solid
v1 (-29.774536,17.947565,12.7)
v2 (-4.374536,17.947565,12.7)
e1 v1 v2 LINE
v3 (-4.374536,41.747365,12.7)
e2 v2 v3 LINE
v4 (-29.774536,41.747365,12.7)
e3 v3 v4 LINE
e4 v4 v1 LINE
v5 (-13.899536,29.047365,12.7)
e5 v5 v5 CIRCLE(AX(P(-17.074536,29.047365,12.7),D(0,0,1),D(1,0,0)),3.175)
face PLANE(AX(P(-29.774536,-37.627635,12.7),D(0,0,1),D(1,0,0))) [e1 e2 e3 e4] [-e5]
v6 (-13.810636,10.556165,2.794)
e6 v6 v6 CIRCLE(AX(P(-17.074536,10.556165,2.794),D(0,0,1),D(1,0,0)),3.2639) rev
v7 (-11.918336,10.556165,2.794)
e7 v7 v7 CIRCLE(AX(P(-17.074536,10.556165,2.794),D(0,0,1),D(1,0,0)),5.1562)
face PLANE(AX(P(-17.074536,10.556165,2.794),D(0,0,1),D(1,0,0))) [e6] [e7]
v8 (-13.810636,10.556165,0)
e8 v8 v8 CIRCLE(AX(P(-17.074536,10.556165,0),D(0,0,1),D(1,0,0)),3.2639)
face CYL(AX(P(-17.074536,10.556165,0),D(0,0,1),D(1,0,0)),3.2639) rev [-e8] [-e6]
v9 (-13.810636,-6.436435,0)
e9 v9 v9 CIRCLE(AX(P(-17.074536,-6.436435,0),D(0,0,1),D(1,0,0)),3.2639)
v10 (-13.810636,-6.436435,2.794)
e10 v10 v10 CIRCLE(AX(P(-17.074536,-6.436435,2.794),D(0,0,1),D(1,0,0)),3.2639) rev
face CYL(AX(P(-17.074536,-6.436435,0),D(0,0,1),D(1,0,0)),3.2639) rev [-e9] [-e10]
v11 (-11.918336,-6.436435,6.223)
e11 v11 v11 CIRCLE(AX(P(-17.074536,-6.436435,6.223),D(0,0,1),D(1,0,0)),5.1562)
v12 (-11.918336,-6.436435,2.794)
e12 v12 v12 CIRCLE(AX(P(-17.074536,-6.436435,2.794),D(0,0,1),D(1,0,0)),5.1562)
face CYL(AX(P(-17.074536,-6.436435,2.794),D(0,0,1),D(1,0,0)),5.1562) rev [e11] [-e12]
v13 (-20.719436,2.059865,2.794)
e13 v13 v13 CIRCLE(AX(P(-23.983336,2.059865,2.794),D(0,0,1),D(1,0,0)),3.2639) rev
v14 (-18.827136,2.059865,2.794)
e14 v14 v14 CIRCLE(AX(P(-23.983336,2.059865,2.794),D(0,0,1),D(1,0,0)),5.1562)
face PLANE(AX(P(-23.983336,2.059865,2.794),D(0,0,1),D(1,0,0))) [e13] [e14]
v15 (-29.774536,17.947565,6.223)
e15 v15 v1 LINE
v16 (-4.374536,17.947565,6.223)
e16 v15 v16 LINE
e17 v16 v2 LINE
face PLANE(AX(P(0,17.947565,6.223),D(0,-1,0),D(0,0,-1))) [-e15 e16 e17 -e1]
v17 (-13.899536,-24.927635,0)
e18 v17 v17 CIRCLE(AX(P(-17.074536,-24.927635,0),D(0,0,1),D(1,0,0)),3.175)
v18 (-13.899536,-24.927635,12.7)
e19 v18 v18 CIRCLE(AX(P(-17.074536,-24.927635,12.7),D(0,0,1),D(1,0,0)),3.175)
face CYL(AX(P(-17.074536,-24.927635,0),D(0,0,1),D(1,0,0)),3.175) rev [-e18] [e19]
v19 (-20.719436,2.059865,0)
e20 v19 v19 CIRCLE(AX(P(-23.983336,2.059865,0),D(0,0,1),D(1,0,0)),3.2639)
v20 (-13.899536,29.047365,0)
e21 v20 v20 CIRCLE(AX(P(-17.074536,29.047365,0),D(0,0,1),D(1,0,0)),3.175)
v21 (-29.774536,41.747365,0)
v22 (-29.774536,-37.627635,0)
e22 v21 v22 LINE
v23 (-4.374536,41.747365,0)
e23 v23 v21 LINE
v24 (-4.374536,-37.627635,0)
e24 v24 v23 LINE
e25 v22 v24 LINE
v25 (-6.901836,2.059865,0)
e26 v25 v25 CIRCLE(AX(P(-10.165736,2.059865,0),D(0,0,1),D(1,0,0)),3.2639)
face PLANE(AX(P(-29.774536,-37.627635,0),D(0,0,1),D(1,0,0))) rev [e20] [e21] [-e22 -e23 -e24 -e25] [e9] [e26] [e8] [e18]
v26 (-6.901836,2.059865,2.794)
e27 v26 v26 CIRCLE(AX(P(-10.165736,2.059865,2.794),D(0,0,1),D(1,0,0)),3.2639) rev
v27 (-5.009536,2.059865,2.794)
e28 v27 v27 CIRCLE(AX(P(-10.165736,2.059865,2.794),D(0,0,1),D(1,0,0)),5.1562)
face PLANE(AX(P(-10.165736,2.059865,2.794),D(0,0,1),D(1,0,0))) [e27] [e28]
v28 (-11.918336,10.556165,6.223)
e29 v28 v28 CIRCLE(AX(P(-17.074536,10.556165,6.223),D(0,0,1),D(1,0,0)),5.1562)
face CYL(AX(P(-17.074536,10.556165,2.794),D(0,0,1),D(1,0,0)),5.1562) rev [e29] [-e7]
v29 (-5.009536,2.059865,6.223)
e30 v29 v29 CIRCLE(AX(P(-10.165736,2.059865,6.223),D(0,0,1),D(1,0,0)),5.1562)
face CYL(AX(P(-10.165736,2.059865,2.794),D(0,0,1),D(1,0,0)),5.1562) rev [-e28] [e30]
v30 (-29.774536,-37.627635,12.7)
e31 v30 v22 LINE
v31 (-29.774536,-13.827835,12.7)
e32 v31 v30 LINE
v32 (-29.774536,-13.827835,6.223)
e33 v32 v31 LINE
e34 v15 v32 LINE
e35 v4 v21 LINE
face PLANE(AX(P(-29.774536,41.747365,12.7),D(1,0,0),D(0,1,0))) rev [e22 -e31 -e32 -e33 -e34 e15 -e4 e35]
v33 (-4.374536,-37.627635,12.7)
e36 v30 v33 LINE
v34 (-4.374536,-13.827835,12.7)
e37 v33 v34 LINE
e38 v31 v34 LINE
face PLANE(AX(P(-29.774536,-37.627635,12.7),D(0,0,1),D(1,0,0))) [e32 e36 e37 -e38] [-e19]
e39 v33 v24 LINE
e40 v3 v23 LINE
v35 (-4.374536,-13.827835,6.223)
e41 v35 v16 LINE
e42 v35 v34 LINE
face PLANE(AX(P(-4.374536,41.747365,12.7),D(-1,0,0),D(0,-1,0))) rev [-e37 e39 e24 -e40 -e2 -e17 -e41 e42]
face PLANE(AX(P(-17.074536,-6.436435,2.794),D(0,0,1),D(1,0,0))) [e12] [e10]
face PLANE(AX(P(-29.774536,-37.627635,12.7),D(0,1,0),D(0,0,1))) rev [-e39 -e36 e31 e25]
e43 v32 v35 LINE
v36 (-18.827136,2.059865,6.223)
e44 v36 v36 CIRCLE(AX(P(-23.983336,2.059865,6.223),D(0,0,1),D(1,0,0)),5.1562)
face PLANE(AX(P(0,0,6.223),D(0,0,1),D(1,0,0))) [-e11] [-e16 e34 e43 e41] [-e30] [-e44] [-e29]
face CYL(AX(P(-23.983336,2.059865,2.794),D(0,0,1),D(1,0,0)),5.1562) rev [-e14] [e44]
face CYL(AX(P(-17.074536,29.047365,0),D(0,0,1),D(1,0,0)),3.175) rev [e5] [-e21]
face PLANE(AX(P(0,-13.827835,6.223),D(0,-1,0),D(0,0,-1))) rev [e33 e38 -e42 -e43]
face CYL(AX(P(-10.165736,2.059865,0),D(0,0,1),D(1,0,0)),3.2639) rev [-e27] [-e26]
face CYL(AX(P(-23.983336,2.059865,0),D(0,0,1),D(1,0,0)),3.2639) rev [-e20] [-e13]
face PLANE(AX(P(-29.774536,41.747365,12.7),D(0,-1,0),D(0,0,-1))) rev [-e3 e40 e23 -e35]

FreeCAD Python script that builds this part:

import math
import FreeCAD as App
import Part
import Sketcher
Q = App.Units.Quantity


def add_polygon(sketch, points):
    """Adds a closed chain of lines whose ends are joined by coincident constraints."""
    first, n = sketch.GeometryCount, len(points)
    for a, b in zip(points, points[1:] + points[:1]):
        sketch.addGeometry(Part.LineSegment(App.Vector(*a, 0), App.Vector(*b, 0)), False)
    for i in range(n):
        sketch.addConstraint(Sketcher.Constraint("Coincident", first + i, 2, first + (i + 1) % n, 1))

doc = App.newDocument("Part")
body = doc.addObject("PartDesign::Body", "Body")

sketch1 = body.newObject("Sketcher::SketchObject", "Sketch")
sketch1.AttachmentSupport = (doc.getObject("XY_Plane"), [""])
sketch1.MapMode = "FlatFace"
add_polygon(sketch1, [(-30, 42), (-30, -38), (-4, -38), (-4, 42)])
sketch1.addConstraint([
    Sketcher.Constraint("Vertical", 0),
    Sketcher.Constraint("Horizontal", 1),
    Sketcher.Constraint("Vertical", 2),
    Sketcher.Constraint("Horizontal", 3),
    Sketcher.Constraint("DistanceX", 1, 1, 1, 2, Q("1 in")),
    Sketcher.Constraint("DistanceY", 0, 2, 0, 1, Q("3.125 in")),
    Sketcher.Constraint("DistanceX", 0, 2, -1, 1, Q("29.774536 mm")),
    Sketcher.Constraint("DistanceY", 0, 2, -1, 1, Q("37.627635 mm")),
])
pad1 = body.newObject("PartDesign::Pad", "Pad")
pad1.Profile = sketch1
pad1.Length = Q("0.5 in")

sketch2 = body.newObject("Sketcher::SketchObject", "Sketch001")
sketch2.AttachmentSupport = (doc.getObject("XY_Plane"), [""])
sketch2.MapMode = "FlatFace"
sketch2.AttachmentOffset = App.Placement(App.Vector(0, 0, 0.5 * 25.4), App.Rotation())
add_polygon(sketch2, [(-30, 18), (-30, -14), (-4, -14), (-4, 18)])
sketch2.addConstraint([
    Sketcher.Constraint("Vertical", 0),
    Sketcher.Constraint("Horizontal", 1),
    Sketcher.Constraint("Vertical", 2),
    Sketcher.Constraint("Horizontal", 3),
    Sketcher.Constraint("DistanceX", 1, 1, 1, 2, Q("1 in")),
    Sketcher.Constraint("DistanceY", 0, 2, 0, 1, Q("1.251 in")),
    Sketcher.Constraint("DistanceX", 0, 2, -1, 1, Q("29.774536 mm")),
    Sketcher.Constraint("DistanceY", 0, 2, -1, 1, Q("13.827835 mm")),
])
pocket1 = body.newObject("PartDesign::Pocket", "Pocket")
pocket1.Profile = sketch2
pocket1.Length = Q("0.255 in")

sketch3 = body.newObject("Sketcher::SketchObject", "Sketch002")
sketch3.AttachmentSupport = (doc.getObject("XY_Plane"), [""])
sketch3.MapMode = "FlatFace"
sketch3.AttachmentOffset = App.Placement(App.Vector(0, 0, 0.5 * 25.4), App.Rotation())
sketch3.addGeometry([
    Part.Circle(App.Vector(-17.1, 10.6, 0), App.Vector(0, 0, 1), 3.3),
    Part.ArcOfCircle(Part.Circle(App.Vector(-24, 2.1, 0), App.Vector(0, 0, 1), 3.3), math.radians(180), math.radians(270)),
    Part.ArcOfCircle(Part.Circle(App.Vector(-24, 2.1, 0), App.Vector(0, 0, 1), 3.3), math.radians(-90), math.radians(0)),
    Part.ArcOfCircle(Part.Circle(App.Vector(-24, 2.1, 0), App.Vector(0, 0, 1), 3.3), math.radians(0), math.radians(90)),
    Part.ArcOfCircle(Part.Circle(App.Vector(-24, 2.1, 0), App.Vector(0, 0, 1), 3.3), math.radians(90), math.radians(180)),
    Part.ArcOfCircle(Part.Circle(App.Vector(-10.2, 2.1, 0), App.Vector(0, 0, 1), 3.3), math.radians(180), math.radians(270)),
    Part.ArcOfCircle(Part.Circle(App.Vector(-10.2, 2.1, 0), App.Vector(0, 0, 1), 3.3), math.radians(-90), math.radians(0)),
    Part.ArcOfCircle(Part.Circle(App.Vector(-10.2, 2.1, 0), App.Vector(0, 0, 1), 3.3), math.radians(0), math.radians(90)),
    Part.ArcOfCircle(Part.Circle(App.Vector(-10.2, 2.1, 0), App.Vector(0, 0, 1), 3.3), math.radians(90), math.radians(180)),
    Part.Circle(App.Vector(-17.1, -6.4, 0), App.Vector(0, 0, 1), 3.3),
    Part.Circle(App.Vector(-17.1, -24.9, 0), App.Vector(0, 0, 1), 3.2),
    Part.Circle(App.Vector(-17.1, 29, 0), App.Vector(0, 0, 1), 3.2),
], False)
sketch3.addConstraint([
    Sketcher.Constraint("Tangent", 1, 2, 2, 1),
    Sketcher.Constraint("Tangent", 2, 2, 3, 1),
    Sketcher.Constraint("Tangent", 3, 2, 4, 1),
    Sketcher.Constraint("Tangent", 4, 2, 1, 1),
    Sketcher.Constraint("Tangent", 5, 2, 6, 1),
    Sketcher.Constraint("Tangent", 6, 2, 7, 1),
    Sketcher.Constraint("Tangent", 7, 2, 8, 1),
    Sketcher.Constraint("Tangent", 8, 2, 5, 1),
    Sketcher.Constraint("Equal", 0, 1),
    Sketcher.Constraint("Equal", 1, 2),
    Sketcher.Constraint("Equal", 4, 5),
    Sketcher.Constraint("Equal", 5, 6),
    Sketcher.Constraint("Equal", 8, 9),
    Sketcher.Constraint("Equal", 10, 11),
    Sketcher.Constraint("Horizontal", 4, 3, 5, 3),
    Sketcher.Constraint("Horizontal", 8, 3, 2, 2),
    Sketcher.Constraint("Horizontal", 2, 2, 4, 2),
    Sketcher.Constraint("Horizontal", 4, 2, 6, 2),
    Sketcher.Constraint("Horizontal", 6, 2, 8, 2),
    Sketcher.Constraint("Vertical", 0, 3, 9, 3),
    Sketcher.Constraint("Vertical", 9, 3, 10, 3),
    Sketcher.Constraint("Vertical", 10, 3, 11, 3),
    Sketcher.Constraint("Vertical", 4, 3, 1, 2),
    Sketcher.Constraint("Vertical", 1, 2, 3, 2),
    Sketcher.Constraint("Vertical", 8, 3, 5, 2),
    Sketcher.Constraint("Vertical", 5, 2, 7, 2),
    Sketcher.Constraint("Diameter", 10, Q("0.25 in")),
    Sketcher.Constraint("Diameter", 0, Q("0.257 in")),
    Sketcher.Constraint("DistanceX", 1, 3, 0, 3, Q("0.272 in")),
    Sketcher.Constraint("DistanceX", 0, 3, 5, 3, Q("0.272 in")),
    Sketcher.Constraint("DistanceY", 10, 3, 9, 3, Q("0.728 in")),
    Sketcher.Constraint("DistanceY", 10, 3, 5, 3, Q("1.0625 in")),
    Sketcher.Constraint("DistanceY", 0, 3, 11, 3, Q("0.728 in")),
    Sketcher.Constraint("DistanceY", 8, 3, 11, 3, Q("1.0625 in")),
    Sketcher.Constraint("DistanceX", 0, 3, -1, 1, Q("17.074536 mm")),
    Sketcher.Constraint("DistanceY", -1, 1, 0, 3, Q("10.556165 mm")),
])
pocket2 = body.newObject("PartDesign::Pocket", "Pocket001")
pocket2.Profile = sketch3
pocket2.Type = "ThroughAll"

sketch4 = body.newObject("Sketcher::SketchObject", "Sketch003")
sketch4.AttachmentSupport = (doc.getObject("XY_Plane"), [""])
sketch4.MapMode = "FlatFace"
sketch4.AttachmentOffset = App.Placement(App.Vector(0, 0, 0.245 * 25.4), App.Rotation())
sketch4.addGeometry([
    Part.Circle(App.Vector(-17, 11, 0), App.Vector(0, 0, 1), 5),
    Part.Circle(App.Vector(-10, 2, 0), App.Vector(0, 0, 1), 5),
    Part.Circle(App.Vector(-17, -6, 0), App.Vector(0, 0, 1), 5),
    Part.Circle(App.Vector(-24, 2, 0), App.Vector(0, 0, 1), 5),
], False)
sketch4.addConstraint([
    Sketcher.Constraint("Equal", 0, 1),
    Sketcher.Constraint("Equal", 1, 2),
    Sketcher.Constraint("Equal", 2, 3),
    Sketcher.Constraint("Horizontal", 1, 3, 3, 3),
    Sketcher.Constraint("Vertical", 0, 3, 2, 3),
    Sketcher.Constraint("Diameter", 0, Q("0.406 in")),
    Sketcher.Constraint("DistanceX", 0, 3, 1, 3, Q("0.272 in")),
    Sketcher.Constraint("DistanceY", 2, 3, 0, 3, Q("0.669 in")),
    Sketcher.Constraint("DistanceX", 3, 3, 0, 3, Q("0.272 in")),
    Sketcher.Constraint("DistanceY", 1, 3, 0, 3, Q("0.3345 in")),
    Sketcher.Constraint("DistanceX", 0, 3, -1, 1, Q("17.074536 mm")),
    Sketcher.Constraint("DistanceY", -1, 1, 0, 3, Q("10.556165 mm")),
])
pocket3 = body.newObject("PartDesign::Pocket", "Pocket002")
pocket3.Profile = sketch4
pocket3.Length = Q("0.135 in")

doc.recompute()
